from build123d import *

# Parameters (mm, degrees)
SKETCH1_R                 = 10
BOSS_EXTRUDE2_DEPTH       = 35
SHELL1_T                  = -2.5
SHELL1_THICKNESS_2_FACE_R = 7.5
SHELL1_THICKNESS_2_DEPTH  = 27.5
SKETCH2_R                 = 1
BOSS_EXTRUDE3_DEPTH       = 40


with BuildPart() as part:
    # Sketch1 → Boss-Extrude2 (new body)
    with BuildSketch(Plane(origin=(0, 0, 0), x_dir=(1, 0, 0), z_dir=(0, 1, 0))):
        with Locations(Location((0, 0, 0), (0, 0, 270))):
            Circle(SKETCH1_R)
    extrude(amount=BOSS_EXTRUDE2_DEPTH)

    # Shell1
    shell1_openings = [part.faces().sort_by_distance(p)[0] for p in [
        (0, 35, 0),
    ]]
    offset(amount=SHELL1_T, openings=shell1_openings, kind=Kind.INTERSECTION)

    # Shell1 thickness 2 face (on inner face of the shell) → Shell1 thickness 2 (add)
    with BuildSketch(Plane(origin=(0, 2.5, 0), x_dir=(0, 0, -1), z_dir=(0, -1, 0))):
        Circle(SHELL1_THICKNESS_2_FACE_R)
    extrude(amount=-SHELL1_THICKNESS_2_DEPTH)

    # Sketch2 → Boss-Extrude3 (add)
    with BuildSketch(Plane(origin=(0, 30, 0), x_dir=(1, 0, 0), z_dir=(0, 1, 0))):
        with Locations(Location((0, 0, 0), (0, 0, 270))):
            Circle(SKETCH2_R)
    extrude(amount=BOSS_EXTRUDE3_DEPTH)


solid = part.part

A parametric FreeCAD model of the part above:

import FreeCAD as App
import Part
import Sketcher


def faces_at(feature, points):
    """Names of the faces that lie closest to the given points."""
    faces = feature.Shape.Faces
    near = lambda p: min(range(len(faces)), key=lambda i: faces[i].distToShape(Part.Vertex(*p))[0])
    return sorted({f"Face{near(p) + 1}" for p in points})

doc = App.newDocument("Part")
body = doc.addObject("PartDesign::Body", "Body")

# Sketch on XZ plane
sketch1 = doc.addObject("Sketcher::SketchObject", "Sketch")
body.addObject(sketch1)
sketch1.AttachmentSupport = (doc.XZ_Plane, [""])
sketch1.MapMode = "FlatFace"
sketch1.addGeometry(Part.Circle(App.Vector(0, 0, 0), App.Vector(0, 0, 1), 10), False)
sketch1.addConstraint([
    Sketcher.Constraint("Coincident", 0, 3, -1, 1),
    Sketcher.Constraint("Diameter", 0, 20.0),
])
pad1 = doc.addObject("PartDesign::Pad", "Pad")
body.addObject(pad1)
pad1.Profile = sketch1
pad1.Length = 35
pad1.Reversed = True
doc.recompute()

thickness = doc.addObject("PartDesign::Thickness", "Thickness")
body.addObject(thickness)
thickness.Base = (pad1, faces_at(pad1, [(0, 35, 0)]))
thickness.Value = 2.5
thickness.Reversed = True
thickness.Join = "Intersection"

# Sketch on XZ plane
sketch2 = doc.addObject("Sketcher::SketchObject", "Sketch001")
body.addObject(sketch2)
sketch2.AttachmentSupport = (doc.XZ_Plane, [""])
sketch2.MapMode = "FlatFace"
sketch2.AttachmentOffset = App.Placement(App.Vector(0, 0, -2.5), App.Rotation())
sketch2.addGeometry(Part.Circle(App.Vector(0, 0, 0), App.Vector(0, 0, 1), 8), False)
sketch2.addConstraint([
    Sketcher.Constraint("Coincident", 0, 3, -1, 1),
    Sketcher.Constraint("Diameter", 0, 15.0),
])
pad2 = doc.addObject("PartDesign::Pad", "Pad001")
body.addObject(pad2)
pad2.Profile = sketch2
pad2.Length = 27.5
pad2.Reversed = True

# Sketch on XZ plane
sketch3 = doc.addObject("Sketcher::SketchObject", "Sketch002")
body.addObject(sketch3)
sketch3.AttachmentSupport = (doc.XZ_Plane, [""])
sketch3.MapMode = "FlatFace"
sketch3.AttachmentOffset = App.Placement(App.Vector(0, 0, -30), App.Rotation())
sketch3.addGeometry(Part.Circle(App.Vector(0, 0, 0), App.Vector(0, 0, 1), 1), False)
sketch3.addConstraint([
    Sketcher.Constraint("Coincident", 0, 3, -1, 1),
    Sketcher.Constraint("Diameter", 0, 2.0),
])
pad3 = doc.addObject("PartDesign::Pad", "Pad002")
body.addObject(pad3)
pad3.Profile = sketch3
pad3.Length = 40
pad3.Reversed = True

doc.recompute()
